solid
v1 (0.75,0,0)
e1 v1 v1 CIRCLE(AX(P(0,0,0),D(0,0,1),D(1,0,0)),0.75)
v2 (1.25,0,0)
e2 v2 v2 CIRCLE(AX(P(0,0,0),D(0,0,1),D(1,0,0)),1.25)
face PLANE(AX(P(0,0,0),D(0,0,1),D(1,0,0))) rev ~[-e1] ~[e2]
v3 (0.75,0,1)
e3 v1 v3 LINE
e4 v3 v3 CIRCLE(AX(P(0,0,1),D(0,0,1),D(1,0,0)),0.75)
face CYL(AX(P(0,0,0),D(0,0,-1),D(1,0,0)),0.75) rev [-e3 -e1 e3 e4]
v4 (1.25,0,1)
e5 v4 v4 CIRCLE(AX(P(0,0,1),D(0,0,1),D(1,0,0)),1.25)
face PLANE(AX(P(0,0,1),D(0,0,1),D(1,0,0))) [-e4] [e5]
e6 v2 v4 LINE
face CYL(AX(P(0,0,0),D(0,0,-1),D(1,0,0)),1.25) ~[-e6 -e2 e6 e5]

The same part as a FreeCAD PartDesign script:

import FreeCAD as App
import Part
import Sketcher
Q = App.Units.Quantity

doc = App.newDocument("Part")
body = doc.addObject("PartDesign::Body", "Body")

sketch1 = body.newObject("Sketcher::SketchObject", "Sketch")
sketch1.AttachmentSupport = (doc.getObject("XY_Plane"), [""])
sketch1.MapMode = "FlatFace"
sketch1.addGeometry([
    Part.Circle(App.Vector(0, 0, 0), App.Vector(0, 0, 1), 1.25),
    Part.Circle(App.Vector(0, 0, 0), App.Vector(0, 0, 1), 0.75),
], False)
sketch1.addConstraint([
    Sketcher.Constraint("Coincident", 0, 3, -1, 1),
    Sketcher.Constraint("Coincident", 1, 3, -1, 1),
    Sketcher.Constraint("Diameter", 0, Q("2.5 mm")),
    Sketcher.Constraint("Diameter", 1, Q("1.5 mm")),
])
pad1 = body.newObject("PartDesign::Pad", "Pad")
pad1.Profile = sketch1
pad1.Length = 1

doc.recompute()
